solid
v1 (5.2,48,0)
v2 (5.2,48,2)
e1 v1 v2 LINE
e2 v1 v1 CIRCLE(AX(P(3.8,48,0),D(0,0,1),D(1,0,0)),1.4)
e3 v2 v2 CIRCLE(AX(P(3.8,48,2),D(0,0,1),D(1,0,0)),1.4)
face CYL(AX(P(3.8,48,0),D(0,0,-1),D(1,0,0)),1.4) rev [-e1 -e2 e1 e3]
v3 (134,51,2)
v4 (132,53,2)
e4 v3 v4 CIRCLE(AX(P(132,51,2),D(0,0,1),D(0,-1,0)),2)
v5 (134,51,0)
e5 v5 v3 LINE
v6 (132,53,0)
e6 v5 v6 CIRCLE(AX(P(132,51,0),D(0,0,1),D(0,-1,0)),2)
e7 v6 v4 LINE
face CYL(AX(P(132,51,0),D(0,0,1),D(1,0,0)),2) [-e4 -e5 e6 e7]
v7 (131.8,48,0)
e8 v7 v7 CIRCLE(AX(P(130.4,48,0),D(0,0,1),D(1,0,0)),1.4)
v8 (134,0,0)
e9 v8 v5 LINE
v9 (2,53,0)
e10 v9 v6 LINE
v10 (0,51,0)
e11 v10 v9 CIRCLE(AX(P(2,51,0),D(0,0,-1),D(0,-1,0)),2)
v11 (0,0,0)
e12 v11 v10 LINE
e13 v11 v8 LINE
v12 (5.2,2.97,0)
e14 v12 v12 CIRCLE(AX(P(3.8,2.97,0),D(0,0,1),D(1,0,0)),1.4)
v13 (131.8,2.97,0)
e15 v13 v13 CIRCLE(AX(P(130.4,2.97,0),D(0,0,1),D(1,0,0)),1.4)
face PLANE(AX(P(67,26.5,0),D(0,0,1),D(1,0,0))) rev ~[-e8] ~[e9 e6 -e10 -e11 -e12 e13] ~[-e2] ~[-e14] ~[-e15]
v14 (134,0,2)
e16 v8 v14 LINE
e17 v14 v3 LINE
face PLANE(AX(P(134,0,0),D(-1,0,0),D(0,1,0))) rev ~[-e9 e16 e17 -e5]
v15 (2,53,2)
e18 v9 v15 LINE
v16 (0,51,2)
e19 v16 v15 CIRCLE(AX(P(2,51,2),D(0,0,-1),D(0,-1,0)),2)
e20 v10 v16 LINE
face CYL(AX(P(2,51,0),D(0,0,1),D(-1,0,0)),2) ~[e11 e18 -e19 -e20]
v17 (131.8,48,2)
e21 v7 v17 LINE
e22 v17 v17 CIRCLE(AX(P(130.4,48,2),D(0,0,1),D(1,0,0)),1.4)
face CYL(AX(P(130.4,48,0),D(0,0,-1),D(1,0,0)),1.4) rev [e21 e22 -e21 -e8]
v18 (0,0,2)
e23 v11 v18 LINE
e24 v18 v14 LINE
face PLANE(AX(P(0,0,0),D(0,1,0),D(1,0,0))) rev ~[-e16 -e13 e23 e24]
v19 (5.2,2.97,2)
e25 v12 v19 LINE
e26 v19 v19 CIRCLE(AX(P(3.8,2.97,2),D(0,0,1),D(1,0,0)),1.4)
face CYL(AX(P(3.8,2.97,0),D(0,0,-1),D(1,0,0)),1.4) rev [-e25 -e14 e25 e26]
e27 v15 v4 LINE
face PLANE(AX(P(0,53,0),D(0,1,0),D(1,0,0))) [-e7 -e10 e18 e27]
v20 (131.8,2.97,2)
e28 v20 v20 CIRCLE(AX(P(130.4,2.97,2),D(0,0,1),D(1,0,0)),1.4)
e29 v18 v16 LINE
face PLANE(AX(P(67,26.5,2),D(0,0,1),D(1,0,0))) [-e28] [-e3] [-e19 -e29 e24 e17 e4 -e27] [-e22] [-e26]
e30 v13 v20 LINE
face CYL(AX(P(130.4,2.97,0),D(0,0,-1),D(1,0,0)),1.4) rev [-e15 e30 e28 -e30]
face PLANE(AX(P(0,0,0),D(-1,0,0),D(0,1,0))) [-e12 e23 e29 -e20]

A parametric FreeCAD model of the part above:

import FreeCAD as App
import Part
import Sketcher


def edges_at(feature, points):
    """Names of the edges that pass closest to the given points."""
    edges = feature.Shape.Edges
    near = lambda p: min(range(len(edges)), key=lambda i: edges[i].distToShape(Part.Vertex(*p))[0])
    return sorted({f"Edge{near(p) + 1}" for p in points})


def add_polygon(sketch, points):
    """Adds a closed chain of lines whose ends are joined by coincident constraints."""
    first, n = sketch.GeometryCount, len(points)
    for a, b in zip(points, points[1:] + points[:1]):
        sketch.addGeometry(Part.LineSegment(App.Vector(*a, 0), App.Vector(*b, 0)), False)
    for i in range(n):
        sketch.addConstraint(Sketcher.Constraint("Coincident", first + i, 2, first + (i + 1) % n, 1))

doc = App.newDocument("Part")
body = doc.addObject("PartDesign::Body", "Body")

# Sketch on XY plane
sketch1 = body.newObject("Sketcher::SketchObject", "Sketch")
sketch1.AttachmentSupport = (doc.getObject("XY_Plane"), [""])
sketch1.MapMode = "FlatFace"
sketch1.addGeometry(Part.Circle(App.Vector(130.4, 48, 0), App.Vector(0, 0, 1), 1.4), False)
sketch1.addConstraint([
    Sketcher.Constraint("Diameter", 0, 2.8),
    Sketcher.Constraint("DistanceY", -1, 1, 0, 3, 48.0),
    Sketcher.Constraint("DistanceX", -1, 1, 0, 3, 130.4),
])
pad1 = body.newObject("PartDesign::Pad", "Pad")
pad1.Profile = sketch1
pad1.Length = 2
body2 = doc.addObject("PartDesign::Body", "Body001")

# Sketch on XY plane
sketch2 = body2.newObject("Sketcher::SketchObject", "Sketch001")
sketch2.AttachmentSupport = (doc.getObject("XY_Plane001"), [""])
sketch2.MapMode = "FlatFace"
sketch2.addGeometry(Part.Circle(App.Vector(3.8, 48, 0), App.Vector(0, 0, 1), 1.4), False)
sketch2.addConstraint([
    Sketcher.Constraint("Diameter", 0, 2.8),
    Sketcher.Constraint("DistanceY", -1, 1, 0, 3, 48.0),
    Sketcher.Constraint("DistanceX", -1, 1, 0, 3, 3.8),
])
pad2 = body2.newObject("PartDesign::Pad", "Pad001")
pad2.Profile = sketch2
pad2.Length = 2
body3 = doc.addObject("PartDesign::Body", "Body002")

# Sketch on XY plane
sketch3 = body3.newObject("Sketcher::SketchObject", "Sketch002")
sketch3.AttachmentSupport = (doc.getObject("XY_Plane002"), [""])
sketch3.MapMode = "FlatFace"
sketch3.addGeometry(Part.Circle(App.Vector(130.4, 3, 0), App.Vector(0, 0, 1), 1.4), False)
sketch3.addConstraint([
    Sketcher.Constraint("Diameter", 0, 2.8),
    Sketcher.Constraint("DistanceX", -1, 1, 0, 3, 130.4),
    Sketcher.Constraint("DistanceY", -1, 1, 0, 3, 2.97),
])
pad3 = body3.newObject("PartDesign::Pad", "Pad002")
pad3.Profile = sketch3
pad3.Length = 2
body4 = doc.addObject("PartDesign::Body", "Body003")
body4.AllowCompound = True

# Sketch on XY plane
sketch4 = body4.newObject("Sketcher::SketchObject", "Sketch003")
sketch4.AttachmentSupport = (doc.getObject("XY_Plane003"), [""])
sketch4.MapMode = "FlatFace"
sketch4.addGeometry(Part.Circle(App.Vector(3.8, 3, 0), App.Vector(0, 0, 1), 1.4), False)
sketch4.addConstraint([
    Sketcher.Constraint("Diameter", 0, 2.8),
    Sketcher.Constraint("DistanceX", -1, 1, 0, 3, 3.8),
    Sketcher.Constraint("DistanceY", -1, 1, 0, 3, 2.97),
])
pad4 = body4.newObject("PartDesign::Pad", "Pad003")
pad4.Profile = sketch4
pad4.Length = 2
doc.recompute()

boolean = body4.newObject("PartDesign::Boolean", "Boolean")
boolean.Type = "Fuse"
boolean.addObjects([body])
doc.recompute()

boolean2 = body4.newObject("PartDesign::Boolean", "Boolean001")
boolean2.Type = "Fuse"
boolean2.addObjects([body2])
doc.recompute()

boolean3 = body4.newObject("PartDesign::Boolean", "Boolean002")
boolean3.Type = "Fuse"
boolean3.addObjects([body3])
body5 = doc.addObject("PartDesign::Body", "Body004")

# Sketch on XY plane
sketch5 = body5.newObject("Sketcher::SketchObject", "Sketch004")
sketch5.AttachmentSupport = (doc.getObject("XY_Plane004"), [""])
sketch5.MapMode = "FlatFace"
add_polygon(sketch5, [(0, 53), (0, 0), (134, 0), (134, 53)])  # lines 0-3
sketch5.addConstraint([
    Sketcher.Constraint("Vertical", 0),
    Sketcher.Constraint("Horizontal", 1),
    Sketcher.Constraint("Vertical", 2),
    Sketcher.Constraint("Horizontal", 3),
    Sketcher.Constraint("Coincident", 0, 2, -1, 1),
    Sketcher.Constraint("DistanceX", 1, 1, 1, 2, 134.0),
    Sketcher.Constraint("DistanceY", 0, 2, 0, 1, 53.0),
])
pad5 = body5.newObject("PartDesign::Pad", "Pad004")
pad5.Profile = sketch5
pad5.Length = 2
doc.recompute()

fillet = body5.newObject("PartDesign::Fillet", "Fillet")
fillet.Base = (pad5, edges_at(pad5, [(0, 53, 1), (134, 53, 1)]))
fillet.Radius = 2
doc.recompute()

boolean4 = body5.newObject("PartDesign::Boolean", "Boolean003")
boolean4.Type = "Cut"
boolean4.addObjects([body4])

doc.recompute()
